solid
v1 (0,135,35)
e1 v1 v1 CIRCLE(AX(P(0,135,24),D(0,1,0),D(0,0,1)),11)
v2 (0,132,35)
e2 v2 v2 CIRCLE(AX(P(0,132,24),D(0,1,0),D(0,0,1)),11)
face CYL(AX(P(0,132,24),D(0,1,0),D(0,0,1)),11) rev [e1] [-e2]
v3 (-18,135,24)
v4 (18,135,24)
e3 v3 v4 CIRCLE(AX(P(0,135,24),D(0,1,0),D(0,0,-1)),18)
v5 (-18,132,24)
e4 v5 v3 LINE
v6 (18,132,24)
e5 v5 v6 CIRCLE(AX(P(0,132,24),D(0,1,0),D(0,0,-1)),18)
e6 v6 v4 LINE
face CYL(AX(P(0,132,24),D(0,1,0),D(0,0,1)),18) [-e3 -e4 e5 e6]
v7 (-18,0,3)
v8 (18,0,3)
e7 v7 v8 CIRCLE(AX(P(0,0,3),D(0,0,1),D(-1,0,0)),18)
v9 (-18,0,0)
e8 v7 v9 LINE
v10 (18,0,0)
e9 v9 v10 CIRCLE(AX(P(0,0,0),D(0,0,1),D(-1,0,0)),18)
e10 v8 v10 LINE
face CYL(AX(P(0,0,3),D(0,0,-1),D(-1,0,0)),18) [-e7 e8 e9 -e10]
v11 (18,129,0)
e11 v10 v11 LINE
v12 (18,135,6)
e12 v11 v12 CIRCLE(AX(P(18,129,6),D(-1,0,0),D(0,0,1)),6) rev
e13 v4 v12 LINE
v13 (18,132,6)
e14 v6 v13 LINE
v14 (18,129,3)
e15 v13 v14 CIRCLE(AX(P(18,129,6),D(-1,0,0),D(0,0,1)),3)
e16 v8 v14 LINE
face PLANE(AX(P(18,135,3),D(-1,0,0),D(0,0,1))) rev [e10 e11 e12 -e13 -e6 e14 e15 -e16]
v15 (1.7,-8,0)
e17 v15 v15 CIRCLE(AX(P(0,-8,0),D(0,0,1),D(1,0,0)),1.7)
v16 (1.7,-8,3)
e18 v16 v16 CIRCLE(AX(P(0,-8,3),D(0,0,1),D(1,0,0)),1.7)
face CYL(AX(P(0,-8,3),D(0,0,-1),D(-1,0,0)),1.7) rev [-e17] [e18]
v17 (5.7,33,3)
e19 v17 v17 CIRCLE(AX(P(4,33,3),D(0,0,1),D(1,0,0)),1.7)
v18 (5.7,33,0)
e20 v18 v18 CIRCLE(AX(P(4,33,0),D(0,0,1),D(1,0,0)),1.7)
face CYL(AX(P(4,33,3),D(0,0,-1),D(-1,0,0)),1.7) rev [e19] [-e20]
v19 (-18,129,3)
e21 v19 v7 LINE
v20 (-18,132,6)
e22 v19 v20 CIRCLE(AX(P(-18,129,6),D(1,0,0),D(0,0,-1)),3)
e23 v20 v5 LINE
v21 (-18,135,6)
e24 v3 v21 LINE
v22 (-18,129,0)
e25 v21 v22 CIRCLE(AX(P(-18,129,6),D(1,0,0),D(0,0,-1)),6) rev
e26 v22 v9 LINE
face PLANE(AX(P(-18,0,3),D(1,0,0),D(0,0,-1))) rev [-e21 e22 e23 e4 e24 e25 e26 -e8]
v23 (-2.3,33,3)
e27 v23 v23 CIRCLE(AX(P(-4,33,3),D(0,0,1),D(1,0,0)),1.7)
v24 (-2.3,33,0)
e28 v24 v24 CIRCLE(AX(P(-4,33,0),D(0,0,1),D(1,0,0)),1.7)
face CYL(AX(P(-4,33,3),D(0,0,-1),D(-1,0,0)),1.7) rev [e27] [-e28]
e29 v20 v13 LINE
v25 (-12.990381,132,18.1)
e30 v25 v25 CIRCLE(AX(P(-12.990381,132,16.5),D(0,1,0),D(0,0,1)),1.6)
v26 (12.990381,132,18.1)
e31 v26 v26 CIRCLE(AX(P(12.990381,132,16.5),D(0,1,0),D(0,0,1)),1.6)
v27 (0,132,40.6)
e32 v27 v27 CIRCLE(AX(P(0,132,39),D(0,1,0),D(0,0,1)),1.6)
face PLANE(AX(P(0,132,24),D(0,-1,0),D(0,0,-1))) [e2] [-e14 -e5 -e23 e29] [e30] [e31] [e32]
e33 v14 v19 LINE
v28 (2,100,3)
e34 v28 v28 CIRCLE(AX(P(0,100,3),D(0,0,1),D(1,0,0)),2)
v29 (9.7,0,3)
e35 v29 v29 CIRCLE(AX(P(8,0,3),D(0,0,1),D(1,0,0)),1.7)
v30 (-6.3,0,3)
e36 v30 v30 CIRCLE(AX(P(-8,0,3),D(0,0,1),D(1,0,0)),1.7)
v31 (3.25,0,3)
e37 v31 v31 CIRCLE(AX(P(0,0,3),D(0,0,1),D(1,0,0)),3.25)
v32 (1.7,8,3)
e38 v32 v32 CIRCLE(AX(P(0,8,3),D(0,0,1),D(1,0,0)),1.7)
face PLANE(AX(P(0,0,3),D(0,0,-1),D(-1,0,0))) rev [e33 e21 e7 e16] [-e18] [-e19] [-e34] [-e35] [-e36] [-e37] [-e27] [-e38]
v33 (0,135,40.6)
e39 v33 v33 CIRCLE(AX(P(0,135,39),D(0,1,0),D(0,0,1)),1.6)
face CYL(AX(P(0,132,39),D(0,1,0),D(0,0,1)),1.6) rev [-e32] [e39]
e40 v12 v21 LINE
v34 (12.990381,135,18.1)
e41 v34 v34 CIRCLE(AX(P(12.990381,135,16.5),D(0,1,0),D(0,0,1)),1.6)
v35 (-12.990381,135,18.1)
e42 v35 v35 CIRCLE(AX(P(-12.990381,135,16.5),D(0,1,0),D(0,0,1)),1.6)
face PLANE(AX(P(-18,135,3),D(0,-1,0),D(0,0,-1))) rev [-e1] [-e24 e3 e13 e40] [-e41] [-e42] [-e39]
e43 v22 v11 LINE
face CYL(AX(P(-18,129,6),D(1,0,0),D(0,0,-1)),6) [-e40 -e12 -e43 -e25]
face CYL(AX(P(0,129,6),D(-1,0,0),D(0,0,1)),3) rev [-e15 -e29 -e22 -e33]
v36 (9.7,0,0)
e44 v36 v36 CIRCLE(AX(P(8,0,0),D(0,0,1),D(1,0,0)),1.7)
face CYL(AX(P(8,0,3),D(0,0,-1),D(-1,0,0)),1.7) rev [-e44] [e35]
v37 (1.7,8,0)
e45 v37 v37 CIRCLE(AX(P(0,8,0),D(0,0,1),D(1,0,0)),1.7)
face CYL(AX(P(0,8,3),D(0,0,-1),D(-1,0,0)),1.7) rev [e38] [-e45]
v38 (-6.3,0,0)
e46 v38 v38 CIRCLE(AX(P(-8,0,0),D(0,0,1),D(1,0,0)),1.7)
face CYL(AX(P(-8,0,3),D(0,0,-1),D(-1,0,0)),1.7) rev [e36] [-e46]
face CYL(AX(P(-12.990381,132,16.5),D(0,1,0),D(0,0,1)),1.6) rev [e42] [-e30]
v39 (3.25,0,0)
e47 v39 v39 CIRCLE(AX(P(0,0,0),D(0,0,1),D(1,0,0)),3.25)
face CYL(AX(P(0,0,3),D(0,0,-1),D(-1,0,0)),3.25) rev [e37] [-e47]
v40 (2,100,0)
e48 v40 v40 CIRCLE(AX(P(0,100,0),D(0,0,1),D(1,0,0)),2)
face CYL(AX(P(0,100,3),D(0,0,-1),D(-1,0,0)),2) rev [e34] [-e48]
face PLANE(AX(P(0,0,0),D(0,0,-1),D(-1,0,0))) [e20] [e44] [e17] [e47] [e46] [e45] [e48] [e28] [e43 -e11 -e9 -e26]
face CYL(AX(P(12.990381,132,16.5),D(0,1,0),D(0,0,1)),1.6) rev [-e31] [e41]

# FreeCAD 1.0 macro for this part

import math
import FreeCAD as App
import Part
import Sketcher
Q = App.Units.Quantity


def edges_at(feature, points):
    """Names of the edges that pass closest to the given points."""
    edges = feature.Shape.Edges
    near = lambda p: min(range(len(edges)), key=lambda i: edges[i].distToShape(Part.Vertex(*p))[0])
    return sorted({f"Edge{near(p) + 1}" for p in points})

doc = App.newDocument("Part")
body = doc.addObject("PartDesign::Body", "Body")

sketch1 = body.newObject("Sketcher::SketchObject", "Sketch")
sketch1.AttachmentSupport = (doc.getObject("XY_Plane"), [""])
sketch1.MapMode = "FlatFace"
sketch1.addGeometry([
    Part.LineSegment(App.Vector(-18, 135, 0), App.Vector(-18, 0, 0)),
    Part.ArcOfCircle(Part.Circle(App.Vector(0, 0, 0), App.Vector(0, 0, 1), 18), math.radians(180), math.radians(360)),
    Part.LineSegment(App.Vector(18, 0, 0), App.Vector(18, 135, 0)),
    Part.LineSegment(App.Vector(18, 135, 0), App.Vector(-18, 135, 0)),
    Part.Circle(App.Vector(8, 0, 0), App.Vector(0, 0, 1), 1.7),
    Part.Circle(App.Vector(4, 33, 0), App.Vector(0, 0, 1), 1.7),
    Part.Circle(App.Vector(0, -8, 0), App.Vector(0, 0, 1), 1.7),
    Part.Circle(App.Vector(0, 0, 0), App.Vector(0, 0, 1), 3.2),
    Part.Circle(App.Vector(0, 8, 0), App.Vector(0, 0, 1), 1.7),
    Part.Circle(App.Vector(-8, 0, 0), App.Vector(0, 0, 1), 1.7),
    Part.Circle(App.Vector(-4, 33, 0), App.Vector(0, 0, 1), 1.7),
    Part.Circle(App.Vector(0, 100, 0), App.Vector(0, 0, 1), 2),
], False)
sketch1.addConstraint([
    Sketcher.Constraint("Tangent", 0, 2, 1, 1),
    Sketcher.Constraint("Tangent", 1, 2, 2, 1),
    Sketcher.Constraint("Coincident", 2, 2, 3, 1),
    Sketcher.Constraint("Coincident", 3, 2, 0, 1),
    Sketcher.Constraint("Vertical", 0),
    Sketcher.Constraint("Vertical", 2),
    Sketcher.Constraint("Horizontal", 3),
    Sketcher.Constraint("Coincident", 1, 3, -1, 1),
    Sketcher.Constraint("Coincident", 7, 3, -1, 1),
    Sketcher.Constraint("Equal", 4, 5),
    Sketcher.Constraint("Equal", 5, 6),
    Sketcher.Constraint("Equal", 6, 8),
    Sketcher.Constraint("Equal", 8, 9),
    Sketcher.Constraint("Equal", 9, 10),
    Sketcher.Constraint("Symmetric", 6, 3, 8, 3, -1, 1),
    Sketcher.Constraint("Symmetric", 4, 3, 9, 3, -1, 1),
    Sketcher.Constraint("Symmetric", 5, 3, 10, 3, -2),
    Sketcher.Constraint("PointOnObject", 4, 3, -1),
    Sketcher.Constraint("PointOnObject", 6, 3, -2),
    Sketcher.Constraint("PointOnObject", 11, 3, -2),
    Sketcher.Constraint("Diameter", 11, Q("4 mm")),
    Sketcher.Constraint("Radius", 1, Q("18 mm")),
    Sketcher.Constraint("Diameter", 4, Q("3.4 mm")),
    Sketcher.Constraint("Diameter", 7, Q("6.5 mm")),
    Sketcher.Constraint("DistanceY", 0, 2, 0, 1, Q("135 mm")),
    Sketcher.Constraint("DistanceX", -1, 1, 4, 3, Q("8 mm")),
    Sketcher.Constraint("DistanceX", -1, 1, 5, 3, Q("4 mm")),
    Sketcher.Constraint("DistanceY", -1, 1, 5, 3, Q("33 mm")),
    Sketcher.Constraint("DistanceY", 6, 3, -1, 1, Q("8 mm")),
    Sketcher.Constraint("DistanceY", -1, 1, 11, 3, Q("100 mm")),
])
pad1 = body.newObject("PartDesign::Pad", "Pad")
pad1.Profile = sketch1
pad1.Length = 3

sketch2 = body.newObject("Sketcher::SketchObject", "Sketch001")
sketch2.AttachmentSupport = (doc.getObject("XZ_Plane"), [""])
sketch2.MapMode = "FlatFace"
sketch2.AttachmentOffset = App.Placement(App.Vector(0, 0, -135), App.Rotation())
sketch2.addGeometry([
    Part.LineSegment(App.Vector(18, 0, 0), App.Vector(-18, 0, 0)),
    Part.LineSegment(App.Vector(-18, 0, 0), App.Vector(-18, 24, 0)),
    Part.ArcOfCircle(Part.Circle(App.Vector(0, 24, 0), App.Vector(0, 0, 1), 18), math.radians(0), math.radians(180)),
    Part.LineSegment(App.Vector(18, 24, 0), App.Vector(18, 0, 0)),
    Part.Circle(App.Vector(0, 39, 0), App.Vector(0, 0, 1), 1.6),
    Part.Circle(App.Vector(13, 16.5, 0), App.Vector(0, 0, 1), 1.6),
    Part.Circle(App.Vector(0, 24, 0), App.Vector(0, 0, 1), 11),
    Part.Circle(App.Vector(-13, 16.5, 0), App.Vector(0, 0, 1), 1.6),
], False)
sketch2.addConstraint([
    Sketcher.Constraint("Coincident", 0, 2, 1, 1),
    Sketcher.Constraint("Tangent", 1, 2, 2, 2),
    Sketcher.Constraint("Tangent", 2, 1, 3, 1),
    Sketcher.Constraint("Coincident", 3, 2, 0, 1),
    Sketcher.Constraint("Horizontal", 0),
    Sketcher.Constraint("Vertical", 1),
    Sketcher.Constraint("Vertical", 3),
    Sketcher.Constraint("Coincident", 6, 3, 2, 3),
    Sketcher.Constraint("Equal", 4, 5),
    Sketcher.Constraint("Equal", 5, 7),
    Sketcher.Constraint("Symmetric", 0, 2, 3, 2, -1, 1),
    Sketcher.Constraint("Symmetric", 5, 3, 7, 3, -2),
    Sketcher.Constraint("PointOnObject", 4, 3, -2),
    Sketcher.Constraint("Diameter", 6, Q("22 mm")),
    Sketcher.Constraint("Radius", 2, Q("18 mm")),
    Sketcher.Constraint("Diameter", 4, Q("3.2 mm")),
    Sketcher.Constraint("DistanceY", 1, 1, 1, 2, Q("24 mm")),
    Sketcher.Constraint("DistanceY", -1, 1, 4, 3, Q("39 mm")),
    Sketcher.Constraint("DistanceY", -1, 1, 5, 3, Q("16.5 mm")),
    Sketcher.Constraint("DistanceX", -1, 1, 5, 3, Q("12.990381 mm")),
])
pad2 = body.newObject("PartDesign::Pad", "Pad001")
pad2.Profile = sketch2
pad2.Length = 3
doc.recompute()

fillet = body.newObject("PartDesign::Fillet", "Fillet")
fillet.Base = (pad2, edges_at(pad2, [(0, 132, 3)]))
fillet.Radius = 3
doc.recompute()

fillet2 = body.newObject("PartDesign::Fillet", "Fillet001")
fillet2.Base = (fillet, edges_at(fillet, [(0, 135, 0)]))
fillet2.Radius = 6

doc.recompute()
